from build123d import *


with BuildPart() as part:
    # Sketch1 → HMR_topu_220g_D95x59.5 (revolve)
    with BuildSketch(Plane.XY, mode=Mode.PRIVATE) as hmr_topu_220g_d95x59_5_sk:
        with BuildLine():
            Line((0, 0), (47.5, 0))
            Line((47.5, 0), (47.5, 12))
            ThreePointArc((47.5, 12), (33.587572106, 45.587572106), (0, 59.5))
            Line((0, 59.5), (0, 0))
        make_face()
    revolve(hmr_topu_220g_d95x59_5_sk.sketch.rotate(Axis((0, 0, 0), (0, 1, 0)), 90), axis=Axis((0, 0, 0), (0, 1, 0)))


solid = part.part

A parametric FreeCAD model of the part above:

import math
import FreeCAD as App
import Part
import Sketcher
from FreeCAD import Vector
Q = App.Units.Quantity

doc = App.newDocument("Part")
body = doc.addObject("PartDesign::Body", "Body")

sketch1 = body.newObject("Sketcher::SketchObject", "Sketch")
sketch1.AttachmentSupport = (doc.getObject("XY_Plane"), [""])
sketch1.MapMode = "FlatFace"
sketch1.addGeometry([
    Part.LineSegment(Vector(0, 0, 0), Vector(48, 0, 0)),
    Part.LineSegment(Vector(48, 0, 0), Vector(48, 12, 0)),
    Part.ArcOfCircle(Part.Circle(Vector(0, 12, 0), Vector(0, 0, 1), 48), math.radians(0), math.radians(90)),
    Part.LineSegment(Vector(0, 60, 0), Vector(0, 0, 0)),
], False)
sketch1.addConstraint([
    Sketcher.Constraint("Coincident", 0, 2, 1, 1),
    Sketcher.Constraint("Tangent", 1, 2, 2, 1),
    Sketcher.Constraint("Coincident", 2, 2, 3, 1),
    Sketcher.Constraint("Coincident", 3, 2, 0, 1),
    Sketcher.Constraint("Horizontal", 0),
    Sketcher.Constraint("Vertical", 1),
    Sketcher.Constraint("Vertical", 3),
    Sketcher.Constraint("Coincident", 3, 2, -1, 1),
    Sketcher.Constraint("PointOnObject", 2, 3, -2),
    Sketcher.Constraint("Radius", 2, Q("47.5 mm")),
    Sketcher.Constraint("DistanceY", 1, 1, 1, 2, Q("12 mm")),
])
revolution = body.newObject("PartDesign::Revolution", "Revolution")
revolution.Profile = sketch1
revolution.ReferenceAxis = (sketch1, ["V_Axis"])
revolution.Angle = 360

doc.recompute()
